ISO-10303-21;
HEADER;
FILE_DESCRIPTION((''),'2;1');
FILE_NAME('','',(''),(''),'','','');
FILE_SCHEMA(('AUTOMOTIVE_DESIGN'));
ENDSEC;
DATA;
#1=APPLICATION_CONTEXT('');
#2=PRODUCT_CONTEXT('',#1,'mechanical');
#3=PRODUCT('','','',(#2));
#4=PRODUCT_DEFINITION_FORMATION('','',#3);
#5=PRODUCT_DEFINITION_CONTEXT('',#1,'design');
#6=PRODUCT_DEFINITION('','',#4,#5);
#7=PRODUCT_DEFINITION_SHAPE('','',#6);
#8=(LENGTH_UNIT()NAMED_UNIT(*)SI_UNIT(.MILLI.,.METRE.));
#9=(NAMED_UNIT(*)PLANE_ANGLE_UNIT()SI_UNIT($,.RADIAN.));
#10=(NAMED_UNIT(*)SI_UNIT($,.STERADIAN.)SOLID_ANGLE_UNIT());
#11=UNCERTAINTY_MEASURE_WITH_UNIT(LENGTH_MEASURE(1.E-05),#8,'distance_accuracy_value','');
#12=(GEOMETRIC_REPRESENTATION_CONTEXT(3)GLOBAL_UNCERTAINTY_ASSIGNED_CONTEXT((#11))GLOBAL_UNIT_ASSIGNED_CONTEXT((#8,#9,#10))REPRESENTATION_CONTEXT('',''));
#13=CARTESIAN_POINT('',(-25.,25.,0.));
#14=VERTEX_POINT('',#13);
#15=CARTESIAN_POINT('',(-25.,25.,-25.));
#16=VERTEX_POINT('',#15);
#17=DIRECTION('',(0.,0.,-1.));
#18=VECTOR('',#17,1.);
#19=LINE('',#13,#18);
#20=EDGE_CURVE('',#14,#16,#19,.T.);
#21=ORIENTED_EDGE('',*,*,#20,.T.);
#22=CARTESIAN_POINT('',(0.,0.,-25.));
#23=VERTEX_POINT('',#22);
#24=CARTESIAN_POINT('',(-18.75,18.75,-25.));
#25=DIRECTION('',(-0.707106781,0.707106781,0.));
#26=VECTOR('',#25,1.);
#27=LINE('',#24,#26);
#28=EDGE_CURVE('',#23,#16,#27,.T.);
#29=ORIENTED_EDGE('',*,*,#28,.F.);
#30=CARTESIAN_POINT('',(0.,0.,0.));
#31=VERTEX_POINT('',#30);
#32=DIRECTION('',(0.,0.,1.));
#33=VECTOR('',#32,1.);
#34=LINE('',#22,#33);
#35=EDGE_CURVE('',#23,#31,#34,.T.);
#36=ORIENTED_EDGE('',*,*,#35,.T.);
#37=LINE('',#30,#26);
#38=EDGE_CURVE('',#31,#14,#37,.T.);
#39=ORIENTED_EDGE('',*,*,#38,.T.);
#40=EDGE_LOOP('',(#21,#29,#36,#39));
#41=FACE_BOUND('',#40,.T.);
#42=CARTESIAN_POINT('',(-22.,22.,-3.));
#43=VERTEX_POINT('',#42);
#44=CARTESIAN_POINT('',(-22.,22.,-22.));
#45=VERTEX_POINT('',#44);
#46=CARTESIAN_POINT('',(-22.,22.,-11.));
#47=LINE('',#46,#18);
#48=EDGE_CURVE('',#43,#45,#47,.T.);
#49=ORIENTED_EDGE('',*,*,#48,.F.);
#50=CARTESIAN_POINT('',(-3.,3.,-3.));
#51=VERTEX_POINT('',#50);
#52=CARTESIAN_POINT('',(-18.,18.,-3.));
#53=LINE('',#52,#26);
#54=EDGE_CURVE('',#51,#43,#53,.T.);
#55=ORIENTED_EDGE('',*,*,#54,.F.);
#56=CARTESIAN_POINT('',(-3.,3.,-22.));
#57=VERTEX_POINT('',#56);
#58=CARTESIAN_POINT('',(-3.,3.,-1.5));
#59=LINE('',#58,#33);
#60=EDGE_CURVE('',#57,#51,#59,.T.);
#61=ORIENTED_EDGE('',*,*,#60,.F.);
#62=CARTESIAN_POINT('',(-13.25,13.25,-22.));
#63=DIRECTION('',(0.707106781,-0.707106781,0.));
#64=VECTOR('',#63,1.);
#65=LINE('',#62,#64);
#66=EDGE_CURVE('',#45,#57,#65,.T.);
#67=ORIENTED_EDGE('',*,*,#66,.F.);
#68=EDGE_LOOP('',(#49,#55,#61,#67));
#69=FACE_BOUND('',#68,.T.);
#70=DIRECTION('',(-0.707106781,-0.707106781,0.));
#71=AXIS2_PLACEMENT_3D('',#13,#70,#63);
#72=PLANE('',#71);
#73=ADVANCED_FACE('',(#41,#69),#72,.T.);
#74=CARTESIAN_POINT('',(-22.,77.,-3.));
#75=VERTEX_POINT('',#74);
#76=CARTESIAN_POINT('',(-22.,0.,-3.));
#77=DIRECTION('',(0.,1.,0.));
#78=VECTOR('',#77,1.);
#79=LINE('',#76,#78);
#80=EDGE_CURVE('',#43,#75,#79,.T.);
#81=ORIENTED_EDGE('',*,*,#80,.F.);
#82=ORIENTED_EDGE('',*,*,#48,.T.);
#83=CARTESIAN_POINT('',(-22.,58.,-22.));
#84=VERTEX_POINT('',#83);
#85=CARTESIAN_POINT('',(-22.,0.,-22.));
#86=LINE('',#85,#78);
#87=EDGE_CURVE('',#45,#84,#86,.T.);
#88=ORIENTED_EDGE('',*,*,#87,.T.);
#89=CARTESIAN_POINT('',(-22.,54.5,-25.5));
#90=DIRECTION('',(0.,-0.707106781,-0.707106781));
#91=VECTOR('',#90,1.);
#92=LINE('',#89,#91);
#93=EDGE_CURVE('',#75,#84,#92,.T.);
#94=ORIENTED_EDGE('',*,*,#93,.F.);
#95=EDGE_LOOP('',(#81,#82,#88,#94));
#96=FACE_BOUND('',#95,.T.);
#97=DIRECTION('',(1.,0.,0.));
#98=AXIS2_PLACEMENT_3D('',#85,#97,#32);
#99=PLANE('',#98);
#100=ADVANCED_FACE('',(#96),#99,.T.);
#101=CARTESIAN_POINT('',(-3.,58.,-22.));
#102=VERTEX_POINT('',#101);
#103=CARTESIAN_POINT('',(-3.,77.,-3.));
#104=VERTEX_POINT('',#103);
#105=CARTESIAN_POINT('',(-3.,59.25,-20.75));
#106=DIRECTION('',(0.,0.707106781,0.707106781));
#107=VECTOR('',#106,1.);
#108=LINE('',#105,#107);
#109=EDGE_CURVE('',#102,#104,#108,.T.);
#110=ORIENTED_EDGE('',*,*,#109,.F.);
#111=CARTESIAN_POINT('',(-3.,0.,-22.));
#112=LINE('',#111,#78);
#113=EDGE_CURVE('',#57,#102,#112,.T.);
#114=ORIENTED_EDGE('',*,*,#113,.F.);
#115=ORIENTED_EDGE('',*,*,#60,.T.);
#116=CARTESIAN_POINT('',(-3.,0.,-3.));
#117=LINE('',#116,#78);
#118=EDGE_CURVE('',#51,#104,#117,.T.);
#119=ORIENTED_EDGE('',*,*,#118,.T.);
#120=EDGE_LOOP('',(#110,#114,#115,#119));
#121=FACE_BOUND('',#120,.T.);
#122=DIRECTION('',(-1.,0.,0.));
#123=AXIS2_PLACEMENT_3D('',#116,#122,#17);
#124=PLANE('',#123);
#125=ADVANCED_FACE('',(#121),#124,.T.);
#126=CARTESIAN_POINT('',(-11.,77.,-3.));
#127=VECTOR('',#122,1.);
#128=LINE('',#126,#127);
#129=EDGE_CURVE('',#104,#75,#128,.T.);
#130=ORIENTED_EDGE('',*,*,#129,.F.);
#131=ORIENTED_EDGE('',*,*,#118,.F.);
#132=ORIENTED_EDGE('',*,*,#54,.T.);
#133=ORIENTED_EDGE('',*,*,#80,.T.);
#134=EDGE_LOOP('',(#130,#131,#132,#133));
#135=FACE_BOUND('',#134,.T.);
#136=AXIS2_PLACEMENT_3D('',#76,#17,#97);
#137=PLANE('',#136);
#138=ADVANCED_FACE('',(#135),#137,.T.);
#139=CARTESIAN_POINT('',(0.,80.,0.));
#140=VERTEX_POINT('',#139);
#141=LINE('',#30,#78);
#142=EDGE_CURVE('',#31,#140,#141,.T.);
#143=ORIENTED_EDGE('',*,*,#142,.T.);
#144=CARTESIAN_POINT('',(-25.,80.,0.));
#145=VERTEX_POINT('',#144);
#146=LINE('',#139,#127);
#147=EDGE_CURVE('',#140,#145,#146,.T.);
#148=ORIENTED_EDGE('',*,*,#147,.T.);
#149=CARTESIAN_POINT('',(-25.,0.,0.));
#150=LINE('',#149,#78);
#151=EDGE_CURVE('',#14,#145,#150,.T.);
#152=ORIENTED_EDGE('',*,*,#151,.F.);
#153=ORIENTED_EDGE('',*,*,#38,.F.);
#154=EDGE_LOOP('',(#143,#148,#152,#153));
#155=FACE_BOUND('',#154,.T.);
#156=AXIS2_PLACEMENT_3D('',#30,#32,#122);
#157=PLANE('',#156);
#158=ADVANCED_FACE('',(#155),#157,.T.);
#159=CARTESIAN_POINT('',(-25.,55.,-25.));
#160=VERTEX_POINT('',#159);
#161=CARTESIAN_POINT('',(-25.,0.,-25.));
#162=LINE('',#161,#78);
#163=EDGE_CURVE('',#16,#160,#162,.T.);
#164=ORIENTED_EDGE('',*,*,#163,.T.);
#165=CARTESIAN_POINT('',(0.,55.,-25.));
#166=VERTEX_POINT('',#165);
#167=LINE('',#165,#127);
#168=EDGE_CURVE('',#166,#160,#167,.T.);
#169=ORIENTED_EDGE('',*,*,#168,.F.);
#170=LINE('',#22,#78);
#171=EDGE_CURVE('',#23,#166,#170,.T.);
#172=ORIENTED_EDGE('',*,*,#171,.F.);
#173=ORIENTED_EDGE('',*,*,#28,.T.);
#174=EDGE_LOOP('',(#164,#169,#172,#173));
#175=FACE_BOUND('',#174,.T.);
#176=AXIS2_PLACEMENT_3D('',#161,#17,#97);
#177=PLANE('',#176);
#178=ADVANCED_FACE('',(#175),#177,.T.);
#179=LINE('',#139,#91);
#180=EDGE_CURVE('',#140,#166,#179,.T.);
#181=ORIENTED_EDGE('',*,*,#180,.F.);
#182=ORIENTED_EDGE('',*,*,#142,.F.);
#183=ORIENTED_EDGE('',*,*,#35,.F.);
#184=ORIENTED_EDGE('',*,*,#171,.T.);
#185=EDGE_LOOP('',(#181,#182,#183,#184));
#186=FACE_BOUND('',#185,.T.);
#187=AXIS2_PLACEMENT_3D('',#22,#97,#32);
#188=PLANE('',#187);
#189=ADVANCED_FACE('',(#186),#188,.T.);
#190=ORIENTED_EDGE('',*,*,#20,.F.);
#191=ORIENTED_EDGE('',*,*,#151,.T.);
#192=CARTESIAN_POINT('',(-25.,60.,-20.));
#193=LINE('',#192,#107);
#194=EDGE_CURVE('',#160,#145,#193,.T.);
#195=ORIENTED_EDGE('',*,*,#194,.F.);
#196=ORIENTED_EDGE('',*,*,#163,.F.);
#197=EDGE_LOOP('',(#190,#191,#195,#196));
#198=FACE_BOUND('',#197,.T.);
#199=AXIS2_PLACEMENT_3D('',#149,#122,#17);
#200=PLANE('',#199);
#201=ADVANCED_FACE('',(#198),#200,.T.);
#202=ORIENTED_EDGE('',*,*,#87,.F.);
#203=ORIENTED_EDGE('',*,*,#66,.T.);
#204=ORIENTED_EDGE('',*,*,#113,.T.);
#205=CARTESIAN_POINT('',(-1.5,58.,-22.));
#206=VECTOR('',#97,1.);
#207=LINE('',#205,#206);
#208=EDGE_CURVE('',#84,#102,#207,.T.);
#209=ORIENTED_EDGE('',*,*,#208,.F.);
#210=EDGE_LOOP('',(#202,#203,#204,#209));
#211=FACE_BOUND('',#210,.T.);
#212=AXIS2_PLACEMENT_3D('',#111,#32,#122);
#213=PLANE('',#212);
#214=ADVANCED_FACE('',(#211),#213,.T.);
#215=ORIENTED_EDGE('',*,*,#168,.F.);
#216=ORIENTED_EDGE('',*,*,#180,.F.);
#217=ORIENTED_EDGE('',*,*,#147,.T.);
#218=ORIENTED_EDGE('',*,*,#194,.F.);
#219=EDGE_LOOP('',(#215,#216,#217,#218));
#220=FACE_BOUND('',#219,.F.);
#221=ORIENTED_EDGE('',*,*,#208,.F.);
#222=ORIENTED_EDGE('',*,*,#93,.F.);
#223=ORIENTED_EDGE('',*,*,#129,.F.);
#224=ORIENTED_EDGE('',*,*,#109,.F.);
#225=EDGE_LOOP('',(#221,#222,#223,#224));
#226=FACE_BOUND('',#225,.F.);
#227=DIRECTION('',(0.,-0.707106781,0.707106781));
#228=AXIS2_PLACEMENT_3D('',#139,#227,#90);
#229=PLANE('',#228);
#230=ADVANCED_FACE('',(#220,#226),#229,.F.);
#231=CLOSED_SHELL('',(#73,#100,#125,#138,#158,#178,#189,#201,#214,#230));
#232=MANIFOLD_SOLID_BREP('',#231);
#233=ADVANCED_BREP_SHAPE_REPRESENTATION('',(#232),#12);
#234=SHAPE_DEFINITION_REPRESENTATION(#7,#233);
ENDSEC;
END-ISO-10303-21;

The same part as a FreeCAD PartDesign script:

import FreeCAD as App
import Part
import Sketcher

V = App.Vector
Q = App.Units.Quantity


def add_polygon(sketch, points):
    """Adds a closed chain of lines whose ends are joined by coincident constraints."""
    first, n = sketch.GeometryCount, len(points)
    for a, b in zip(points, points[1:] + points[:1]):
        sketch.addGeometry(Part.LineSegment(App.Vector(*a, 0), App.Vector(*b, 0)), False)
    for i in range(n):
        sketch.addConstraint(Sketcher.Constraint("Coincident", first + i, 2, first + (i + 1) % n, 1))

doc = App.newDocument("Part")
body = doc.addObject("PartDesign::Body", "Body")

# Sketch on XZ plane
sketch1 = body.newObject("Sketcher::SketchObject", "Sketch")
sketch1.AttachmentSupport = (doc.getObject("XZ_Plane"), [""])
sketch1.MapMode = "FlatFace"
add_polygon(sketch1, [(-25, 0), (0, 0), (0, -25), (-25, -25)])  # lines 0-3
add_polygon(sketch1, [(-22, -3), (-22, -22), (-3, -22), (-3, -3)])  # lines 4-7
sketch1.addConstraint(Sketcher.Constraint("Horizontal", 0))
sketch1.addConstraint(Sketcher.Constraint("Vertical", 1))
sketch1.addConstraint(Sketcher.Constraint("Horizontal", 2))
sketch1.addConstraint(Sketcher.Constraint("Vertical", 3))
sketch1.addConstraint(Sketcher.Constraint("Vertical", 4))
sketch1.addConstraint(Sketcher.Constraint("Horizontal", 5))
sketch1.addConstraint(Sketcher.Constraint("Vertical", 6))
sketch1.addConstraint(Sketcher.Constraint("Horizontal", 7))
sketch1.addConstraint(Sketcher.Constraint("Coincident", 0, 2, -1, 1))
sketch1.addConstraint(Sketcher.Constraint("Equal", 2, 1))
sketch1.addConstraint(Sketcher.Constraint("Equal", 7, 4))
sketch1.addConstraint(Sketcher.Constraint("DistanceX", 0, 1, 0, 2, Q("25 mm")))
sketch1.addConstraint(Sketcher.Constraint("DistanceX", 5, 2, -1, 1, Q("3 mm")))
sketch1.addConstraint(Sketcher.Constraint("DistanceY", 6, 2, -1, 1, Q("3 mm")))
sketch1.addConstraint(Sketcher.Constraint("DistanceX", 2, 2, 4, 2, Q("3 mm")))
pad1 = body.newObject("PartDesign::Pad", "Pad")
pad1.Profile = sketch1
pad1.Length = 80
pad1.Reversed = True

# Sketch on YZ plane
sketch2 = body.newObject("Sketcher::SketchObject", "Sketch001")
sketch2.AttachmentSupport = (doc.getObject("YZ_Plane"), [""])
sketch2.MapMode = "FlatFace"
add_polygon(sketch2, [(80, -25), (80, 0), (55, -25)])  # lines 0-2
sketch2.addConstraint(Sketcher.Constraint("Vertical", 0))
sketch2.addConstraint(Sketcher.Constraint("Horizontal", 2))
sketch2.addConstraint(Sketcher.Constraint("PointOnObject", 0, 2, -1))
sketch2.addConstraint(Sketcher.Constraint("Equal", 2, 0))
sketch2.addConstraint(Sketcher.Constraint("DistanceX", 2, 1, 2, 2, Q("25 mm")))
sketch2.addConstraint(Sketcher.Constraint("DistanceX", -1, 1, 0, 2, Q("80 mm")))
pocket1 = body.newObject("PartDesign::Pocket", "Pocket")
pocket1.Profile = sketch2
pocket1.Length = 80

# Sketch on XY plane
sketch3 = body.newObject("Sketcher::SketchObject", "Sketch002")
sketch3.AttachmentSupport = (doc.getObject("XY_Plane"), [""])
sketch3.MapMode = "FlatFace"
add_polygon(sketch3, [(-25, 0), (0, 0), (-25, 25)])  # lines 0-2
sketch3.addConstraint(Sketcher.Constraint("Horizontal", 0))
sketch3.addConstraint(Sketcher.Constraint("Vertical", 2))
sketch3.addConstraint(Sketcher.Constraint("Coincident", 0, 2, -1, 1))
sketch3.addConstraint(Sketcher.Constraint("Equal", 0, 2))
sketch3.addConstraint(Sketcher.Constraint("DistanceX", 0, 1, 0, 2, Q("25 mm")))
pocket2 = body.newObject("PartDesign::Pocket", "Pocket001")
pocket2.Profile = sketch3
pocket2.Length = 44.75

doc.recompute()
